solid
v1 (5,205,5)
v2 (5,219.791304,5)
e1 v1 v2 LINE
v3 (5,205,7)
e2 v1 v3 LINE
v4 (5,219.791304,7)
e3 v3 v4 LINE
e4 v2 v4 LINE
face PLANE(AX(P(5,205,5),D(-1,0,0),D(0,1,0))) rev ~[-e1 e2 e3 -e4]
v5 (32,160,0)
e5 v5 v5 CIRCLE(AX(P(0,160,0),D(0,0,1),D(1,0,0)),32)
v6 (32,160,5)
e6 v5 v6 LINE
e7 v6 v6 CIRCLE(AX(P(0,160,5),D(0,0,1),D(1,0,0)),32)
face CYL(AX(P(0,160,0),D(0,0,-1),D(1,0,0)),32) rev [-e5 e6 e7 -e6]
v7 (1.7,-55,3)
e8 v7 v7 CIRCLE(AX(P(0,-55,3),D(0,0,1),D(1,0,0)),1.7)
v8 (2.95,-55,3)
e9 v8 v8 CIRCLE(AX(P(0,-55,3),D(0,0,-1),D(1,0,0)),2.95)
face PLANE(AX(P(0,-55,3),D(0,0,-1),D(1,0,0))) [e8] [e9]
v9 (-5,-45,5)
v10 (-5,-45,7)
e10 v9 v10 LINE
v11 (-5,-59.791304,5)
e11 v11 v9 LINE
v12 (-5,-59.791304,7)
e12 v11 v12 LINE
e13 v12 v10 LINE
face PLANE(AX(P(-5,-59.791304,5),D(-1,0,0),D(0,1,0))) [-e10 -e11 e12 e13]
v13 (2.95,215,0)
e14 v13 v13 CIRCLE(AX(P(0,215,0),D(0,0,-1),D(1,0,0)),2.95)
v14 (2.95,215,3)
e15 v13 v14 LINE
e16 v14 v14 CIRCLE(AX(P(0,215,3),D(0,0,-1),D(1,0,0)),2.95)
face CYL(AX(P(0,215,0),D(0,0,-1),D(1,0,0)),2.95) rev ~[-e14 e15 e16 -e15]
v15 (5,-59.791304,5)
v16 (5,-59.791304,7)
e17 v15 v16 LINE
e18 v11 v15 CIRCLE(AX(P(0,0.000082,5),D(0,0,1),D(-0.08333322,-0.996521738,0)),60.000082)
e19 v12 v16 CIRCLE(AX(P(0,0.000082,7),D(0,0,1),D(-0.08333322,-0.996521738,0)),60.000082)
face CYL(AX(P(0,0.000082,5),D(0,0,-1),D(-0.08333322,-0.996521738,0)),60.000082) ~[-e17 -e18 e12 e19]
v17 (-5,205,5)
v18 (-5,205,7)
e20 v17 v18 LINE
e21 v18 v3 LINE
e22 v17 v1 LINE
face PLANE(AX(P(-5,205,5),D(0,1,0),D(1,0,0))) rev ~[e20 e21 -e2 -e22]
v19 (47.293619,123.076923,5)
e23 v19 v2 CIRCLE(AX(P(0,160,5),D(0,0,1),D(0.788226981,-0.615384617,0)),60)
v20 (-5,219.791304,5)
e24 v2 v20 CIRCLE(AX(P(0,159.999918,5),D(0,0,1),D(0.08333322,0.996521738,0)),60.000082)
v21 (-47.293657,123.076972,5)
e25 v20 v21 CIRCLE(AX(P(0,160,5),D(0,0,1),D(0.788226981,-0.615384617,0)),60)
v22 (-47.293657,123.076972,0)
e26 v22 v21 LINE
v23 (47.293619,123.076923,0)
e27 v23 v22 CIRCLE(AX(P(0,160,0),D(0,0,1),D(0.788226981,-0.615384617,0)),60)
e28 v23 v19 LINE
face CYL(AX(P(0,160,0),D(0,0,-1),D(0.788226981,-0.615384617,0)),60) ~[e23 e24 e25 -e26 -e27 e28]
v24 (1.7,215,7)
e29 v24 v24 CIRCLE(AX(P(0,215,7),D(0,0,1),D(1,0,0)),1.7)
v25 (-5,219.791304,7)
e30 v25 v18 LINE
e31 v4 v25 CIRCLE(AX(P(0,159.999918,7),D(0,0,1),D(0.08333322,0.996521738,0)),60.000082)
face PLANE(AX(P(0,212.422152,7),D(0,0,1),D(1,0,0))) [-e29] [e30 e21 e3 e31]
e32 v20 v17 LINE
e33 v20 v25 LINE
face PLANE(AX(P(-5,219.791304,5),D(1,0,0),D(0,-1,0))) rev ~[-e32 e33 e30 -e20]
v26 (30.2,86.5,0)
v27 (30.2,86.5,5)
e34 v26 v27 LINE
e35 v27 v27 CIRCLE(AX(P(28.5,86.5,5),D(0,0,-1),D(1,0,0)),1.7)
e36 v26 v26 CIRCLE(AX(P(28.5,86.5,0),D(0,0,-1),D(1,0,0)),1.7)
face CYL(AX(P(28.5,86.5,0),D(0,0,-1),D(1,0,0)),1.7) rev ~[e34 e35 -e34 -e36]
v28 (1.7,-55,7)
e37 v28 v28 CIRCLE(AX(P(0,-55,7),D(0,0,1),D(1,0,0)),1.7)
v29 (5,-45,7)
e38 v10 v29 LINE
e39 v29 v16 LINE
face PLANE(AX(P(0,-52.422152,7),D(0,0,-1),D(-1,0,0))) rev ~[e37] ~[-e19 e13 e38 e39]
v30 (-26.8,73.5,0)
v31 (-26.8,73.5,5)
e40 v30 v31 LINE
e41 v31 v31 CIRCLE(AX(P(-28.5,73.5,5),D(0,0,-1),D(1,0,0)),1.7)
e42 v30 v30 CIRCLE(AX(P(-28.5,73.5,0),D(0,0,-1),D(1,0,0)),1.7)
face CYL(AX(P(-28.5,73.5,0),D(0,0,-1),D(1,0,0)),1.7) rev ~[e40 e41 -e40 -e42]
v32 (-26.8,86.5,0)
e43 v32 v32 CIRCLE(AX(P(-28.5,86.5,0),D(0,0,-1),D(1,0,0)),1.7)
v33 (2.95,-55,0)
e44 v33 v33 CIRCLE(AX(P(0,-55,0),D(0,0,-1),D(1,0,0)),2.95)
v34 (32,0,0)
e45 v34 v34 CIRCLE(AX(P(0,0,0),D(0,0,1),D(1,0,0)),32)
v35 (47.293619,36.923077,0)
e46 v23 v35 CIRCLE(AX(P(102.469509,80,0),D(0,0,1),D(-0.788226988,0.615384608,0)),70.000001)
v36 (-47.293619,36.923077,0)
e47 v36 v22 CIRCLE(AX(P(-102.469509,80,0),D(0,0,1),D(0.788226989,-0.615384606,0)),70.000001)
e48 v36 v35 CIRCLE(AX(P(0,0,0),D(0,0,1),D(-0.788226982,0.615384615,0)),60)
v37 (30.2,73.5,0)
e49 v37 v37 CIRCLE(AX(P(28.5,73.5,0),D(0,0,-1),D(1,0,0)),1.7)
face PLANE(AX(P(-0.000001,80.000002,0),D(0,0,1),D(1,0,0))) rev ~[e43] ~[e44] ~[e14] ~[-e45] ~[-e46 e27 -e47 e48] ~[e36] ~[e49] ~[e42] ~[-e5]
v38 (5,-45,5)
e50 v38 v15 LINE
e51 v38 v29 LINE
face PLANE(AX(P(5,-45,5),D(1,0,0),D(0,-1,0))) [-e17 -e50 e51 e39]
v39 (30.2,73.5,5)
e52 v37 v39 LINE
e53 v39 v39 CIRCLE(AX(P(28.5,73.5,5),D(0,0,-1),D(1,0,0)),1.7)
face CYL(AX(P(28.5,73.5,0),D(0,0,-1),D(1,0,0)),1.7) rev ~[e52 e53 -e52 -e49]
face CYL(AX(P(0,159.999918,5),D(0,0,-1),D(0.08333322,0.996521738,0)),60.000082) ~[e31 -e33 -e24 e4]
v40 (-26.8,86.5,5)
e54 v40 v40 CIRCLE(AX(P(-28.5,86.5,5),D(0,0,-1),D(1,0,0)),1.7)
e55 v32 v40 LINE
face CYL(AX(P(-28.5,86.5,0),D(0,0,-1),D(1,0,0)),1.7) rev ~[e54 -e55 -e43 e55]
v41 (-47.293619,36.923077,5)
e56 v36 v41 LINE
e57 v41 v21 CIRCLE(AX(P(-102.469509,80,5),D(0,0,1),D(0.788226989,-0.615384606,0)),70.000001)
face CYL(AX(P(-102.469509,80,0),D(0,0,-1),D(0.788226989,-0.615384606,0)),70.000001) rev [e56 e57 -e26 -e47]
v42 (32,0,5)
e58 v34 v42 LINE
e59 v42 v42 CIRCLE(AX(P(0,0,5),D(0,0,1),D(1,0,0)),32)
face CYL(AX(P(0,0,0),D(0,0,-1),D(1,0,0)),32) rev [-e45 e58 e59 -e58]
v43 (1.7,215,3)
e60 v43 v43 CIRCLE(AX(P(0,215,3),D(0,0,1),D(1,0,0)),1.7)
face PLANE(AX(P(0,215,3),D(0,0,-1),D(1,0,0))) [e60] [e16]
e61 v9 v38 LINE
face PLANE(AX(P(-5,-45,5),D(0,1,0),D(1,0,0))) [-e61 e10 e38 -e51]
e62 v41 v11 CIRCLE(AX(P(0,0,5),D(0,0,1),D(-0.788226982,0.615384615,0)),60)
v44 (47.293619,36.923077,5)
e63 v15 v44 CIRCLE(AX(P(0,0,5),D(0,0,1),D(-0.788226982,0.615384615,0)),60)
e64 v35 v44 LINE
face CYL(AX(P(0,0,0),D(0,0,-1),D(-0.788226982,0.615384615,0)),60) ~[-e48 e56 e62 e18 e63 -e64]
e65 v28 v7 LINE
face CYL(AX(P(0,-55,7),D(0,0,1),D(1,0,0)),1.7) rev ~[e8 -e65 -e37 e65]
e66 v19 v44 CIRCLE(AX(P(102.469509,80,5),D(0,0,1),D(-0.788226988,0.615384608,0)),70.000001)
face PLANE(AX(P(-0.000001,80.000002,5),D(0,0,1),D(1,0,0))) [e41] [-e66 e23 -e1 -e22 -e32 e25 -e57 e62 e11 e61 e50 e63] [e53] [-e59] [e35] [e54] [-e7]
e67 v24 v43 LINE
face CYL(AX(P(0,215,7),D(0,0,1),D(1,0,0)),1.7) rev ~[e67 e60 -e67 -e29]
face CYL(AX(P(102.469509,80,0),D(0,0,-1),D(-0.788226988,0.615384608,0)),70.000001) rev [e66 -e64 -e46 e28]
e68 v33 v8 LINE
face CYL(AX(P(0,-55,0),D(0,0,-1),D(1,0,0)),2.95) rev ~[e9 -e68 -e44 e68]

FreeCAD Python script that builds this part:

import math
import FreeCAD as App
import Part
import Sketcher
Q = App.Units.Quantity

doc = App.newDocument("Part")
body = doc.addObject("PartDesign::Body", "Body")

# Sketch on XY plane
sketch1 = doc.addObject("Sketcher::SketchObject", "Sketch")
body.addObject(sketch1)
sketch1.AttachmentSupport = (doc.XY_Plane, [""])
sketch1.MapMode = "FlatFace"
sketch1.addGeometry(Part.ArcOfCircle(Part.Circle(App.Vector(0, 0, 0), App.Vector(0, 0, 1), 60), math.radians(142.020128), math.radians(397.979872)), False)
sketch1.addGeometry(Part.ArcOfCircle(Part.Circle(App.Vector(102.469509, 80, 0), App.Vector(0, 0, 1), 70.000001), math.radians(142.020128), math.radians(217.979872)), False)
sketch1.addGeometry(Part.ArcOfCircle(Part.Circle(App.Vector(0, 160, 0), App.Vector(0, 0, 1), 60), math.radians(-37.979873), math.radians(217.979813)), False)
sketch1.addGeometry(Part.ArcOfCircle(Part.Circle(App.Vector(-102.469509, 80, 0), App.Vector(0, 0, 1), 70.000001), math.radians(-37.979872), math.radians(37.979922)), False)
sketch1.addGeometry(Part.Circle(App.Vector(0, 0, 0), App.Vector(0, 0, 1), 32), False)
sketch1.addGeometry(Part.Circle(App.Vector(0, 160, 0), App.Vector(0, 0, 1), 32), False)
sketch1.addConstraint(Sketcher.Constraint("Coincident", 0, 2, 1, 2))
sketch1.addConstraint(Sketcher.Constraint("Coincident", 1, 1, 2, 1))
sketch1.addConstraint(Sketcher.Constraint("Coincident", 2, 2, 3, 2))
sketch1.addConstraint(Sketcher.Constraint("Coincident", 3, 1, 0, 1))
sketch1.addConstraint(Sketcher.Constraint("Coincident", 0, 3, -1, 1))
sketch1.addConstraint(Sketcher.Constraint("Coincident", 4, 3, -1, 1))
sketch1.addConstraint(Sketcher.Constraint("Coincident", 5, 3, 2, 3))
sketch1.addConstraint(Sketcher.Constraint("PointOnObject", 2, 3, -2))
sketch1.addConstraint(Sketcher.Constraint("Diameter", 4, Q("64 mm")))
sketch1.addConstraint(Sketcher.Constraint("Diameter", 5, Q("64 mm")))
sketch1.addConstraint(Sketcher.Constraint("Radius", 0, Q("60 mm")))
sketch1.addConstraint(Sketcher.Constraint("Radius", 1, Q("70.000001 mm")))
sketch1.addConstraint(Sketcher.Constraint("Radius", 2, Q("60 mm")))
sketch1.addConstraint(Sketcher.Constraint("Radius", 3, Q("70.000001 mm")))
sketch1.addConstraint(Sketcher.Constraint("DistanceY", -1, 1, 1, 3, Q("80 mm")))
sketch1.addConstraint(Sketcher.Constraint("DistanceX", -1, 1, 0, 2, Q("47.293619 mm")))
sketch1.addConstraint(Sketcher.Constraint("DistanceX", -1, 1, 1, 1, Q("47.293619 mm")))
sketch1.addConstraint(Sketcher.Constraint("DistanceX", 3, 1, -1, 1, Q("47.293619 mm")))
sketch1.addConstraint(Sketcher.Constraint("DistanceY", 3, 3, 2, 2, Q("43.076972 mm")))
pad1 = doc.addObject("PartDesign::Pad", "Pad")
body.addObject(pad1)
pad1.Profile = sketch1
pad1.Length = 5

# Sketch on XY plane
sketch2 = doc.addObject("Sketcher::SketchObject", "Sketch001")
body.addObject(sketch2)
sketch2.AttachmentSupport = (doc.XY_Plane, [""])
sketch2.MapMode = "FlatFace"
sketch2.AttachmentOffset = App.Placement(App.Vector(0, 0, 5), App.Rotation())
sketch2.addGeometry(Part.LineSegment(App.Vector(-5, -45, 0), App.Vector(-5, -60, 0)), False)
sketch2.addGeometry(Part.ArcOfCircle(Part.Circle(App.Vector(0, 0, 0), App.Vector(0, 0, 1), 60), math.radians(-94.78), math.radians(-85.22)), False)
sketch2.addGeometry(Part.LineSegment(App.Vector(5, -60, 0), App.Vector(5, -45, 0)), False)
sketch2.addGeometry(Part.LineSegment(App.Vector(5, -45, 0), App.Vector(-5, -45, 0)), False)
sketch2.addGeometry(Part.ArcOfCircle(Part.Circle(App.Vector(0, 160, 0), App.Vector(0, 0, 1), 60), math.radians(85.22), math.radians(94.78)), False)
sketch2.addGeometry(Part.LineSegment(App.Vector(-5, 220, 0), App.Vector(-5, 205, 0)), False)
sketch2.addGeometry(Part.LineSegment(App.Vector(-5, 205, 0), App.Vector(5, 205, 0)), False)
sketch2.addGeometry(Part.LineSegment(App.Vector(5, 205, 0), App.Vector(5, 220, 0)), False)
sketch2.addConstraint(Sketcher.Constraint("Coincident", 0, 2, 1, 1))
sketch2.addConstraint(Sketcher.Constraint("Coincident", 1, 2, 2, 1))
sketch2.addConstraint(Sketcher.Constraint("Coincident", 2, 2, 3, 1))
sketch2.addConstraint(Sketcher.Constraint("Coincident", 3, 2, 0, 1))
sketch2.addConstraint(Sketcher.Constraint("Coincident", 4, 2, 5, 1))
sketch2.addConstraint(Sketcher.Constraint("Coincident", 5, 2, 6, 1))
sketch2.addConstraint(Sketcher.Constraint("Coincident", 6, 2, 7, 1))
sketch2.addConstraint(Sketcher.Constraint("Coincident", 7, 2, 4, 1))
sketch2.addConstraint(Sketcher.Constraint("Vertical", 0))
sketch2.addConstraint(Sketcher.Constraint("Vertical", 2))
sketch2.addConstraint(Sketcher.Constraint("Horizontal", 3))
sketch2.addConstraint(Sketcher.Constraint("Vertical", 5))
sketch2.addConstraint(Sketcher.Constraint("Horizontal", 6))
sketch2.addConstraint(Sketcher.Constraint("Vertical", 7))
sketch2.addConstraint(Sketcher.Constraint("Equal", 1, 4))
sketch2.addConstraint(Sketcher.Constraint("Symmetric", 0, 2, 1, 2, -2))
sketch2.addConstraint(Sketcher.Constraint("Symmetric", 4, 2, 7, 2, -2))
sketch2.addConstraint(Sketcher.Constraint("Vertical", 3, 2, 4, 2))
sketch2.addConstraint(Sketcher.Constraint("Equal", 2, 5))
sketch2.addConstraint(Sketcher.Constraint("DistanceX", 3, 2, 3, 1, Q("10 mm")))
sketch2.addConstraint(Sketcher.Constraint("DistanceY", 2, 2, -1, 1, Q("45 mm")))
sketch2.addConstraint(Sketcher.Constraint("DistanceY", -1, 1, 5, 2, Q("205 mm")))
sketch2.addConstraint(Sketcher.Constraint("Radius", 1, Q("60.000082 mm")))
sketch2.addConstraint(Sketcher.Constraint("DistanceY", 0, 2, 0, 1, Q("14.791304 mm")))
pad2 = doc.addObject("PartDesign::Pad", "Pad001")
body.addObject(pad2)
pad2.Profile = sketch2
pad2.Length = 2

# Sketch on XY plane
sketch3 = doc.addObject("Sketcher::SketchObject", "Sketch002")
body.addObject(sketch3)
sketch3.AttachmentSupport = (doc.XY_Plane, [""])
sketch3.MapMode = "FlatFace"
sketch3.AttachmentOffset = App.Placement(App.Vector(0, 0, 7), App.Rotation())
sketch3.addGeometry(Part.Circle(App.Vector(0, -55, 0), App.Vector(0, 0, 1), 1.7), False)
sketch3.addGeometry(Part.Circle(App.Vector(0, 215, 0), App.Vector(0, 0, 1), 1.7), False)
sketch3.addConstraint(Sketcher.Constraint("Equal", 0, 1))
sketch3.addConstraint(Sketcher.Constraint("PointOnObject", 0, 3, -2))
sketch3.addConstraint(Sketcher.Constraint("PointOnObject", 1, 3, -2))
sketch3.addConstraint(Sketcher.Constraint("Diameter", 0, Q("3.4 mm")))
sketch3.addConstraint(Sketcher.Constraint("DistanceY", 0, 3, -1, 1, Q("55 mm")))
sketch3.addConstraint(Sketcher.Constraint("DistanceY", -1, 1, 1, 3, Q("215 mm")))
pocket1 = doc.addObject("PartDesign::Pocket", "Pocket")
body.addObject(pocket1)
pocket1.Profile = sketch3
pocket1.Type = "ThroughAll"

# Sketch on XY plane
sketch4 = doc.addObject("Sketcher::SketchObject", "Sketch003")
body.addObject(sketch4)
sketch4.AttachmentSupport = (doc.XY_Plane, [""])
sketch4.MapMode = "FlatFace"
sketch4.addGeometry(Part.Circle(App.Vector(0, -55, 0), App.Vector(0, 0, 1), 3), False)
sketch4.addGeometry(Part.Circle(App.Vector(0, 215, 0), App.Vector(0, 0, 1), 3), False)
sketch4.addConstraint(Sketcher.Constraint("Equal", 0, 1))
sketch4.addConstraint(Sketcher.Constraint("PointOnObject", 0, 3, -2))
sketch4.addConstraint(Sketcher.Constraint("PointOnObject", 1, 3, -2))
sketch4.addConstraint(Sketcher.Constraint("Diameter", 0, Q("5.9 mm")))
sketch4.addConstraint(Sketcher.Constraint("DistanceY", 0, 3, -1, 1, Q("55 mm")))
sketch4.addConstraint(Sketcher.Constraint("DistanceY", -1, 1, 1, 3, Q("215 mm")))
pocket2 = doc.addObject("PartDesign::Pocket", "Pocket001")
body.addObject(pocket2)
pocket2.Profile = sketch4
pocket2.Length = 3
pocket2.Reversed = True

# Sketch on XY plane
sketch5 = doc.addObject("Sketcher::SketchObject", "Sketch004")
body.addObject(sketch5)
sketch5.AttachmentSupport = (doc.XY_Plane, [""])
sketch5.MapMode = "FlatFace"
sketch5.addGeometry(Part.Circle(App.Vector(28.5, 73.5, 0), App.Vector(0, 0, 1), 1.7), False)
sketch5.addGeometry(Part.Circle(App.Vector(28.5, 86.5, 0), App.Vector(0, 0, 1), 1.7), False)
sketch5.addGeometry(Part.Circle(App.Vector(-28.5, 86.5, 0), App.Vector(0, 0, 1), 1.7), False)
sketch5.addGeometry(Part.Circle(App.Vector(-28.5, 73.5, 0), App.Vector(0, 0, 1), 1.7), False)
sketch5.addConstraint(Sketcher.Constraint("Equal", 0, 1))
sketch5.addConstraint(Sketcher.Constraint("Equal", 1, 2))
sketch5.addConstraint(Sketcher.Constraint("Equal", 2, 3))
sketch5.addConstraint(Sketcher.Constraint("Symmetric", 1, 3, 2, 3, -2))
sketch5.addConstraint(Sketcher.Constraint("Symmetric", 0, 3, 3, 3, -2))
sketch5.addConstraint(Sketcher.Constraint("Vertical", 0, 3, 1, 3))
sketch5.addConstraint(Sketcher.Constraint("Diameter", 0, Q("3.4 mm")))
sketch5.addConstraint(Sketcher.Constraint("DistanceY", 0, 3, 1, 3, Q("13 mm")))
sketch5.addConstraint(Sketcher.Constraint("DistanceX", 2, 3, 1, 3, Q("57 mm")))
sketch5.addConstraint(Sketcher.Constraint("DistanceY", -1, 1, 0, 3, Q("73.5 mm")))
pocket3 = doc.addObject("PartDesign::Pocket", "Pocket002")
body.addObject(pocket3)
pocket3.Profile = sketch5
pocket3.Type = "ThroughAll"
pocket3.Reversed = True

doc.recompute()
